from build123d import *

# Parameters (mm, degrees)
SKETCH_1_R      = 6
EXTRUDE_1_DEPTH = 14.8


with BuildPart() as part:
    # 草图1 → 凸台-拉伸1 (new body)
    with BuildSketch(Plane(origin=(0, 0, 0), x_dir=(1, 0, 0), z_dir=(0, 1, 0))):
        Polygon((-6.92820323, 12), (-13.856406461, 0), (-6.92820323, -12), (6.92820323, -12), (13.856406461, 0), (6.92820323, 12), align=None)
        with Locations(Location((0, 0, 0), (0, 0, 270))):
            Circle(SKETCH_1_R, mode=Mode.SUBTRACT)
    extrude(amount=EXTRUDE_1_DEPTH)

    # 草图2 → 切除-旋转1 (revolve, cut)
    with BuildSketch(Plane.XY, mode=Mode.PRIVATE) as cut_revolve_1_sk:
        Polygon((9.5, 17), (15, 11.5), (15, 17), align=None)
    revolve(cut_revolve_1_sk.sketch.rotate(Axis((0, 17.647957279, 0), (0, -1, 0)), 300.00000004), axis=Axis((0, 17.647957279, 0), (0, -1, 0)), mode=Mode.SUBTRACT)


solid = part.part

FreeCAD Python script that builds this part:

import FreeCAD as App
import Part
import Sketcher
Q = App.Units.Quantity

doc = App.newDocument("Part")
body = doc.addObject("PartDesign::Body", "Body")

sketch1 = doc.addObject("Sketcher::SketchObject", "Sketch")
body.addObject(sketch1)
sketch1.AttachmentSupport = (doc.XZ_Plane, [""])
sketch1.MapMode = "FlatFace"
sketch1.addGeometry(Part.LineSegment(App.Vector(-6.928203, -12, 0), App.Vector(-13.856406, 0, 0)), False)
sketch1.addGeometry(Part.LineSegment(App.Vector(-13.856406, 0, 0), App.Vector(-6.928203, 12, 0)), False)
sketch1.addGeometry(Part.LineSegment(App.Vector(-6.928203, 12, 0), App.Vector(6.928203, 12, 0)), False)
sketch1.addGeometry(Part.LineSegment(App.Vector(6.928203, 12, 0), App.Vector(13.856406, 0, 0)), False)
sketch1.addGeometry(Part.LineSegment(App.Vector(13.856406, 0, 0), App.Vector(6.928203, -12, 0)), False)
sketch1.addGeometry(Part.LineSegment(App.Vector(6.928203, -12, 0), App.Vector(-6.928203, -12, 0)), False)
sketch1.addGeometry(Part.Circle(App.Vector(0, 0, 0), App.Vector(0, 0, 1), 6), False)
sketch1.addConstraint(Sketcher.Constraint("Coincident", 0, 2, 1, 1))
sketch1.addConstraint(Sketcher.Constraint("Coincident", 1, 2, 2, 1))
sketch1.addConstraint(Sketcher.Constraint("Coincident", 2, 2, 3, 1))
sketch1.addConstraint(Sketcher.Constraint("Coincident", 3, 2, 4, 1))
sketch1.addConstraint(Sketcher.Constraint("Coincident", 4, 2, 5, 1))
sketch1.addConstraint(Sketcher.Constraint("Coincident", 5, 2, 0, 1))
sketch1.addConstraint(Sketcher.Constraint("Horizontal", 2))
sketch1.addConstraint(Sketcher.Constraint("Horizontal", 5))
sketch1.addConstraint(Sketcher.Constraint("Coincident", 6, 3, -1, 1))
sketch1.addConstraint(Sketcher.Constraint("Symmetric", 0, 2, 3, 2, -1, 1))
sketch1.addConstraint(Sketcher.Constraint("Symmetric", 1, 2, 4, 2, -1, 1))
sketch1.addConstraint(Sketcher.Constraint("PointOnObject", 0, 2, -1))
sketch1.addConstraint(Sketcher.Constraint("Parallel", 0, 3))
sketch1.addConstraint(Sketcher.Constraint("Vertical", 2, 2, 4, 2))
sketch1.addConstraint(Sketcher.Constraint("Diameter", 6, Q("12 mm")))
sketch1.addConstraint(Sketcher.Constraint("Angle", 0, Q("120 deg")))
sketch1.addConstraint(Sketcher.Constraint("DistanceY", -1, 1, 1, 2, Q("12 mm")))
sketch1.addConstraint(Sketcher.Constraint("DistanceX", 2, 1, 2, 2, Q("13.856406 mm")))
pad1 = doc.addObject("PartDesign::Pad", "Pad")
body.addObject(pad1)
pad1.Profile = sketch1
pad1.Length = 14.8
pad1.Reversed = True

sketch2 = doc.addObject("Sketcher::SketchObject", "Sketch001")
body.addObject(sketch2)
sketch2.AttachmentSupport = (doc.XY_Plane, [""])
sketch2.MapMode = "FlatFace"
sketch2.addGeometry(Part.LineSegment(App.Vector(9.5, 17, 0), App.Vector(15, 11.5, 0)), False)
sketch2.addGeometry(Part.LineSegment(App.Vector(15, 11.5, 0), App.Vector(15, 17, 0)), False)
sketch2.addGeometry(Part.LineSegment(App.Vector(15, 17, 0), App.Vector(9.5, 17, 0)), False)
sketch2.addConstraint(Sketcher.Constraint("Coincident", 0, 2, 1, 1))
sketch2.addConstraint(Sketcher.Constraint("Coincident", 1, 2, 2, 1))
sketch2.addConstraint(Sketcher.Constraint("Coincident", 2, 2, 0, 1))
sketch2.addConstraint(Sketcher.Constraint("Vertical", 1))
sketch2.addConstraint(Sketcher.Constraint("Horizontal", 2))
sketch2.addConstraint(Sketcher.Constraint("Equal", 2, 1))
sketch2.addConstraint(Sketcher.Constraint("DistanceX", 2, 2, 2, 1, Q("5.5 mm")))
sketch2.addConstraint(Sketcher.Constraint("DistanceX", -1, 1, 0, 2, Q("15 mm")))
sketch2.addConstraint(Sketcher.Constraint("DistanceY", -1, 1, 1, 2, Q("17 mm")))
groove = doc.addObject("PartDesign::Groove", "Groove")
body.addObject(groove)
groove.Profile = sketch2
groove.ReferenceAxis = (sketch2, ["V_Axis"])
groove.Angle = 360

doc.recompute()
